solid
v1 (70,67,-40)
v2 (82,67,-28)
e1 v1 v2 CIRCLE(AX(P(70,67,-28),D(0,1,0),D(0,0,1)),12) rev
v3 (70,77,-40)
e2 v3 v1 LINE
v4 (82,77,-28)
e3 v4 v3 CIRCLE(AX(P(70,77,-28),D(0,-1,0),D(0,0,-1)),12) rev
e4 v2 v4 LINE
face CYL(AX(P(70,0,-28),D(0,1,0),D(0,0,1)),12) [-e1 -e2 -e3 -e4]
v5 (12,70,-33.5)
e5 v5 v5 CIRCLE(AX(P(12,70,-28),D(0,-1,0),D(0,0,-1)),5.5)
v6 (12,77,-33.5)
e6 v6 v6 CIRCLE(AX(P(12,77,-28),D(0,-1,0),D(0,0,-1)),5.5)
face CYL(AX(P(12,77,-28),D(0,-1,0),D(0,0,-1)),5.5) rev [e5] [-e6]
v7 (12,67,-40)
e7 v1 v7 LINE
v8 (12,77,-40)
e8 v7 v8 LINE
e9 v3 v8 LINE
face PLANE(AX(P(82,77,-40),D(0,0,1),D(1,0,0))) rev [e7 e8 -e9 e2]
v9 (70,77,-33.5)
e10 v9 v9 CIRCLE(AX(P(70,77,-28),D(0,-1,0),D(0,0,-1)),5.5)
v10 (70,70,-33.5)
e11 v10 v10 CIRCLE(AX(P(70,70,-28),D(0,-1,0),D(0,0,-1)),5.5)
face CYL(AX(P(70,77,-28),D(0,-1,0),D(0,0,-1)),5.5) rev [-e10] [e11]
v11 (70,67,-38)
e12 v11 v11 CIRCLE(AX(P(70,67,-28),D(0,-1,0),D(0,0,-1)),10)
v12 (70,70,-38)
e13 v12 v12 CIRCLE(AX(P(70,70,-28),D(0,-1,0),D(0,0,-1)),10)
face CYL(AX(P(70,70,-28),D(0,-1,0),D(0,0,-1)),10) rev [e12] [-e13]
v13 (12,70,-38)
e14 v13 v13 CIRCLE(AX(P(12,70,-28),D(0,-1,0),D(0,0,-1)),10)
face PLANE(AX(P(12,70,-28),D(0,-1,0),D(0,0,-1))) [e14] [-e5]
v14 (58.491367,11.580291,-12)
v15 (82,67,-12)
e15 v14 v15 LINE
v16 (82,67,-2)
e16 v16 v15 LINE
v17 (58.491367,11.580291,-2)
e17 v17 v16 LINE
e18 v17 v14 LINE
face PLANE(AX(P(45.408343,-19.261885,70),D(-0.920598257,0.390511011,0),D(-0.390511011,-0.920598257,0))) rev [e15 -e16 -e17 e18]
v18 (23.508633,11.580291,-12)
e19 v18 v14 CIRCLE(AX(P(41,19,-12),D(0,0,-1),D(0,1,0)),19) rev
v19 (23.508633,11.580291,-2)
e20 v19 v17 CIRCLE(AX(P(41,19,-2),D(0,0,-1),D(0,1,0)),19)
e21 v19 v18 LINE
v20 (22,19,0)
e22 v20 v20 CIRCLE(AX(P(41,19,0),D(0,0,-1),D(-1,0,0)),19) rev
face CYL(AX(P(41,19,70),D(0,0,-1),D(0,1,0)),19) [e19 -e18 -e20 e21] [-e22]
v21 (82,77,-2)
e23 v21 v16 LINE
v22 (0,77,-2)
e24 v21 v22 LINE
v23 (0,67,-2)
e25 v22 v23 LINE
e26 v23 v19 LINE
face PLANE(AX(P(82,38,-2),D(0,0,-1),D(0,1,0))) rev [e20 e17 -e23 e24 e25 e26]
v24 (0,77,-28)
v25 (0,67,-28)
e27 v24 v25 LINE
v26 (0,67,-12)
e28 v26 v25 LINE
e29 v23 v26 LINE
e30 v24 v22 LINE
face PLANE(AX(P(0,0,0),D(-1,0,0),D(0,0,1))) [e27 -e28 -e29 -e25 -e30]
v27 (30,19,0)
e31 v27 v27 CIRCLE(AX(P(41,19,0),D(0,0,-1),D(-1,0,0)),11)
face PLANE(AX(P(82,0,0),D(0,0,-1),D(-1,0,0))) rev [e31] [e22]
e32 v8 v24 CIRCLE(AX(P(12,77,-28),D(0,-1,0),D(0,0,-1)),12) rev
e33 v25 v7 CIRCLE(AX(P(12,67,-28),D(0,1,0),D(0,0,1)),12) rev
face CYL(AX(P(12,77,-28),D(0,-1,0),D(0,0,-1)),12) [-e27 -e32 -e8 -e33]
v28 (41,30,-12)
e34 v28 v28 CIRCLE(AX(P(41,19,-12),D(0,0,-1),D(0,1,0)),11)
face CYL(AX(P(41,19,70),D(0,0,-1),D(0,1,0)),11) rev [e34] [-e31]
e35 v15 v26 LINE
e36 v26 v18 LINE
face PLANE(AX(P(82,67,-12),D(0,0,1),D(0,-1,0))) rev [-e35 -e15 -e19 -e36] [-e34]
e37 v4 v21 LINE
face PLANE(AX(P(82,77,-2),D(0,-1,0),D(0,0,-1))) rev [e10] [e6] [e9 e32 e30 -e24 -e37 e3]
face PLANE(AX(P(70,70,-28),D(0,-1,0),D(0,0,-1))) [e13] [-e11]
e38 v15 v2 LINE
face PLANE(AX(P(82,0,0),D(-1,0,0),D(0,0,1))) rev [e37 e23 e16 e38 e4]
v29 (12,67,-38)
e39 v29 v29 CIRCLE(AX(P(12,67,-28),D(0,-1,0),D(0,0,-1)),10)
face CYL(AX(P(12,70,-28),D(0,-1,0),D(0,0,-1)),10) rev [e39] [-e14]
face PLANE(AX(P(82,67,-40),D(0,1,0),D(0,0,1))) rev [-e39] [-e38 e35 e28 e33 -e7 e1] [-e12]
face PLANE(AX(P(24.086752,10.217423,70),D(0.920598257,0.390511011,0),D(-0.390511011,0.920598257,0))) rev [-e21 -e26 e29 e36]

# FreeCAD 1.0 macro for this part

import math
import FreeCAD as App
import Part
import Sketcher
from FreeCAD import Vector
Q = App.Units.Quantity


def edges_at(feature, points):
    """Names of the edges that pass closest to the given points."""
    edges = feature.Shape.Edges
    near = lambda p: min(range(len(edges)), key=lambda i: edges[i].distToShape(Part.Vertex(*p))[0])
    return sorted({f"Edge{near(p) + 1}" for p in points})


def add_polygon(sketch, points):
    """Adds a closed chain of lines whose ends are joined by coincident constraints."""
    first, n = sketch.GeometryCount, len(points)
    for a, b in zip(points, points[1:] + points[:1]):
        sketch.addGeometry(Part.LineSegment(App.Vector(*a, 0), App.Vector(*b, 0)), False)
    for i in range(n):
        sketch.addConstraint(Sketcher.Constraint("Coincident", first + i, 2, first + (i + 1) % n, 1))

doc = App.newDocument("Part")
params = doc.addObject("Spreadsheet::Sheet", "Params")
for row, (alias, value) in enumerate([
    ("sketch1_width", "38 mm"),
    ("sketch1_width2", "67 mm"),
    ("sketch1_width3", "10 mm"),
    ("sketch1_height", "12 mm"),
    ("sketch1_height2", "28 mm"),
    ("pad1_length", "82 mm"),
    ("sketch2_radius", "19 mm"),
    ("sketch2_width", "41 mm"),
    ("sketch2_height", "67 mm"),
    ("pocket1_length", "82 mm"),
    ("sketch3_diameter", "22 mm"),
    ("pocket2_length", "82 mm"),
    ("sketch4_radius", "19 mm"),
    ("pocket3_length", "2 mm"),
    ("fillet_radius", "12 mm"),
    ("fillet2_radius", "12 mm"),
    ("sketch5_diameter", "20 mm"),
    ("pocket4_length", "3 mm"),
    ("sketch6_diameter", "11 mm"),
], start=1):
    params.set(f"A{row}", alias)
    params.set(f"B{row}", "=" + value)
    params.setAlias(f"B{row}", alias)

body = doc.addObject("PartDesign::Body", "Body")

# Sketch on YZ plane
sketch1 = body.newObject("Sketcher::SketchObject", "Sketch")
sketch1.AttachmentSupport = (doc.getObject("YZ_Plane"), [""])
sketch1.MapMode = "FlatFace"
add_polygon(sketch1, [(38, 0), (0, 0), (0, -12), (67, -12), (67, -40), (77, -40), (77, -2), (38, -2)])  # lines 0-7
sketch1.addConstraint([
    Sketcher.Constraint("Horizontal", 0),
    Sketcher.Constraint("Vertical", 1),
    Sketcher.Constraint("Horizontal", 2),
    Sketcher.Constraint("Vertical", 3),
    Sketcher.Constraint("Horizontal", 4),
    Sketcher.Constraint("Vertical", 5),
    Sketcher.Constraint("Horizontal", 6),
    Sketcher.Constraint("Vertical", 7),
    Sketcher.Constraint("Coincident", 0, 2, -1, 1),
    Sketcher.Constraint("Equal", 0, 5),
    Sketcher.Constraint("DistanceX", 0, 2, 0, 1, Q("38 mm")),
    Sketcher.Constraint("DistanceX", 2, 1, 2, 2, Q("67 mm")),
    Sketcher.Constraint("DistanceX", 4, 1, 4, 2, Q("10 mm")),
    Sketcher.Constraint("DistanceY", 1, 2, 1, 1, Q("12 mm")),
    Sketcher.Constraint("DistanceY", 3, 2, 3, 1, Q("28 mm")),
])
sketch1.setExpression("Constraints[18]", "Params.sketch1_width")
sketch1.setExpression("Constraints[19]", "Params.sketch1_width2")
sketch1.setExpression("Constraints[20]", "Params.sketch1_width3")
sketch1.setExpression("Constraints[21]", "Params.sketch1_height")
sketch1.setExpression("Constraints[22]", "Params.sketch1_height2")
pad1 = body.newObject("PartDesign::Pad", "Pad")
pad1.Profile = sketch1
pad1.setExpression("Length", "Params.pad1_length")

# Sketch on XY plane
sketch2 = body.newObject("Sketcher::SketchObject", "Sketch001")
sketch2.AttachmentSupport = (doc.getObject("XY_Plane"), [""])
sketch2.MapMode = "FlatFace"
sketch2.AttachmentOffset = App.Placement(Vector(0, 0, -12), App.Rotation())
sketch2.addGeometry([
    Part.LineSegment(Vector(82, 0, 0), Vector(41, 0, 0)),  # 0
    Part.ArcOfCircle(Part.Circle(Vector(41, 19, 0), Vector(0, 0, 1), 19), math.radians(-90), math.radians(-23)),  # 1
    Part.LineSegment(Vector(58, 12, 0), Vector(82, 67, 0)),  # 2
    Part.LineSegment(Vector(82, 67, 0), Vector(82, 0, 0)),  # 3
    Part.LineSegment(Vector(0, 0, 0), Vector(0, 67, 0)),  # 4
    Part.LineSegment(Vector(0, 67, 0), Vector(24, 12, 0)),  # 5
    Part.ArcOfCircle(Part.Circle(Vector(41, 19, 0), Vector(0, 0, 1), 19), math.radians(-157), math.radians(-90)),  # 6
    Part.LineSegment(Vector(41, 0, 0), Vector(0, 0, 0)),  # 7
], False)
sketch2.addConstraint([
    Sketcher.Constraint("Tangent", 0, 2, 1, 1),
    Sketcher.Constraint("Tangent", 1, 2, 2, 1),
    Sketcher.Constraint("Coincident", 2, 2, 3, 1),
    Sketcher.Constraint("Coincident", 3, 2, 0, 1),
    Sketcher.Constraint("Coincident", 4, 2, 5, 1),
    Sketcher.Constraint("Tangent", 5, 2, 6, 1),
    Sketcher.Constraint("Tangent", 6, 2, 7, 1),
    Sketcher.Constraint("Coincident", 7, 2, 4, 1),
    Sketcher.Constraint("Horizontal", 0),
    Sketcher.Constraint("Vertical", 3),
    Sketcher.Constraint("Vertical", 4),
    Sketcher.Constraint("Horizontal", 7),
    Sketcher.Constraint("Coincident", 7, 2, -1, 1),
    Sketcher.Constraint("Coincident", 6, 3, 1, 3),
    Sketcher.Constraint("Equal", 1, 6),
    Sketcher.Constraint("Horizontal", 2, 2, 4, 2),
    Sketcher.Constraint("Horizontal", 1, 2, 5, 2),
    Sketcher.Constraint("Radius", 1, Q("19 mm")),
    Sketcher.Constraint("DistanceX", 0, 2, 0, 1, Q("41 mm")),
    Sketcher.Constraint("DistanceY", 3, 2, 3, 1, Q("67 mm")),
])
sketch2.setExpression("Constraints[17]", "Params.sketch2_radius")
sketch2.setExpression("Constraints[18]", "Params.sketch2_width")
sketch2.setExpression("Constraints[19]", "Params.sketch2_height")
pocket1 = body.newObject("PartDesign::Pocket", "Pocket")
pocket1.Profile = sketch2
pocket1.setExpression("Length", "Params.pocket1_length")
pocket1.Reversed = True

# Sketch on XY plane
sketch3 = body.newObject("Sketcher::SketchObject", "Sketch002")
sketch3.AttachmentSupport = (doc.getObject("XY_Plane"), [""])
sketch3.MapMode = "FlatFace"
sketch3.AttachmentOffset = App.Placement(Vector(0, 0, -12), App.Rotation())
sketch3.addGeometry(Part.Circle(Vector(41, 19, 0), Vector(0, 0, 1), 11), False)
sketch3.addConstraint([
    Sketcher.Constraint("Diameter", 0, Q("22 mm")),
    Sketcher.Constraint("DistanceX", -1, 1, 0, 3, Q("41 mm")),
    Sketcher.Constraint("DistanceY", -1, 1, 0, 3, Q("19 mm")),
])
sketch3.setExpression("Constraints[0]", "Params.sketch3_diameter")
pocket2 = body.newObject("PartDesign::Pocket", "Pocket001")
pocket2.Profile = sketch3
pocket2.setExpression("Length", "Params.pocket2_length")
pocket2.Reversed = True

# Sketch on XY plane
sketch4 = body.newObject("Sketcher::SketchObject", "Sketch003")
sketch4.AttachmentSupport = (doc.getObject("XY_Plane"), [""])
sketch4.MapMode = "FlatFace"
sketch4.addGeometry([
    Part.ArcOfCircle(Part.Circle(Vector(41, 19, 0), Vector(0, 0, 1), 19), math.radians(90), math.radians(203)),  # 0
    Part.LineSegment(Vector(41, 38, 0), Vector(12, 38, 0)),  # 1
    Part.LineSegment(Vector(12, 38, 0), Vector(24, 12, 0)),  # 2
    Part.ArcOfCircle(Part.Circle(Vector(41, 19, 0), Vector(0, 0, 1), 19), math.radians(-23), math.radians(90)),  # 3
    Part.LineSegment(Vector(58, 12, 0), Vector(70, 38, 0)),  # 4
    Part.LineSegment(Vector(70, 38, 0), Vector(41, 38, 0)),  # 5
], False)
sketch4.addConstraint([
    Sketcher.Constraint("Tangent", 0, 1, 1, 1),
    Sketcher.Constraint("Coincident", 1, 2, 2, 1),
    Sketcher.Constraint("Tangent", 2, 2, 0, 2),
    Sketcher.Constraint("Tangent", 3, 1, 4, 1),
    Sketcher.Constraint("Coincident", 4, 2, 5, 1),
    Sketcher.Constraint("Tangent", 5, 2, 3, 2),
    Sketcher.Constraint("Horizontal", 1),
    Sketcher.Constraint("Horizontal", 5),
    Sketcher.Constraint("Coincident", 3, 3, 0, 3),
    Sketcher.Constraint("Equal", 0, 3),
    Sketcher.Constraint("Horizontal", 2, 2, 3, 1),
    Sketcher.Constraint("Radius", 0, Q("19 mm")),
    Sketcher.Constraint("DistanceX", -1, 1, 0, 3, Q("41 mm")),
    Sketcher.Constraint("DistanceY", -1, 1, 0, 3, Q("19 mm")),
    Sketcher.Constraint("DistanceX", 1, 2, 1, 1, Q("28.698413 mm")),
])
sketch4.setExpression("Constraints[11]", "Params.sketch4_radius")
pocket3 = body.newObject("PartDesign::Pocket", "Pocket002")
pocket3.Profile = sketch4
pocket3.setExpression("Length", "Params.pocket3_length")
doc.recompute()

fillet = body.newObject("PartDesign::Fillet", "Fillet")
fillet.Base = (pocket3, edges_at(pocket3, [(0, 72, -40)]))
fillet.setExpression("Radius", "Params.fillet_radius")
doc.recompute()

fillet2 = body.newObject("PartDesign::Fillet", "Fillet001")
fillet2.Base = (fillet, edges_at(fillet, [(82, 72, -40)]))
fillet2.setExpression("Radius", "Params.fillet2_radius")

# Sketch on XZ plane
sketch5 = body.newObject("Sketcher::SketchObject", "Sketch004")
sketch5.AttachmentSupport = (doc.getObject("XZ_Plane"), [""])
sketch5.MapMode = "FlatFace"
sketch5.AttachmentOffset = App.Placement(Vector(0, 0, -67), App.Rotation())
sketch5.addGeometry([
    Part.Circle(Vector(12, -28, 0), Vector(0, 0, 1), 10),
    Part.Circle(Vector(70, -28, 0), Vector(0, 0, 1), 10),
], False)
sketch5.addConstraint([
    Sketcher.Constraint("Equal", 0, 1),
    Sketcher.Constraint("Horizontal", 0, 3, 1, 3),
    Sketcher.Constraint("Diameter", 0, Q("20 mm")),
    Sketcher.Constraint("DistanceX", -1, 1, 0, 3, Q("12 mm")),
    Sketcher.Constraint("DistanceY", 0, 3, -1, 1, Q("28 mm")),
    Sketcher.Constraint("DistanceX", -1, 1, 1, 3, Q("70 mm")),
])
sketch5.setExpression("Constraints[2]", "Params.sketch5_diameter")
pocket4 = body.newObject("PartDesign::Pocket", "Pocket003")
pocket4.Profile = sketch5
pocket4.setExpression("Length", "Params.pocket4_length")

# Sketch on XZ plane
sketch6 = body.newObject("Sketcher::SketchObject", "Sketch005")
sketch6.AttachmentSupport = (doc.getObject("XZ_Plane"), [""])
sketch6.MapMode = "FlatFace"
sketch6.AttachmentOffset = App.Placement(Vector(0, 0, -67), App.Rotation())
sketch6.addGeometry([
    Part.Circle(Vector(12, -28, 0), Vector(0, 0, 1), 6),
    Part.Circle(Vector(70, -28, 0), Vector(0, 0, 1), 6),
], False)
sketch6.addConstraint([
    Sketcher.Constraint("Equal", 0, 1),
    Sketcher.Constraint("Horizontal", 0, 3, 1, 3),
    Sketcher.Constraint("Diameter", 0, Q("11 mm")),
    Sketcher.Constraint("DistanceX", -1, 1, 0, 3, Q("12 mm")),
    Sketcher.Constraint("DistanceY", 0, 3, -1, 1, Q("28 mm")),
    Sketcher.Constraint("DistanceX", -1, 1, 1, 3, Q("70 mm")),
])
sketch6.setExpression("Constraints[2]", "Params.sketch6_diameter")
pocket5 = body.newObject("PartDesign::Pocket", "Pocket004")
pocket5.Profile = sketch6
pocket5.Type = "ThroughAll"

doc.recompute()
